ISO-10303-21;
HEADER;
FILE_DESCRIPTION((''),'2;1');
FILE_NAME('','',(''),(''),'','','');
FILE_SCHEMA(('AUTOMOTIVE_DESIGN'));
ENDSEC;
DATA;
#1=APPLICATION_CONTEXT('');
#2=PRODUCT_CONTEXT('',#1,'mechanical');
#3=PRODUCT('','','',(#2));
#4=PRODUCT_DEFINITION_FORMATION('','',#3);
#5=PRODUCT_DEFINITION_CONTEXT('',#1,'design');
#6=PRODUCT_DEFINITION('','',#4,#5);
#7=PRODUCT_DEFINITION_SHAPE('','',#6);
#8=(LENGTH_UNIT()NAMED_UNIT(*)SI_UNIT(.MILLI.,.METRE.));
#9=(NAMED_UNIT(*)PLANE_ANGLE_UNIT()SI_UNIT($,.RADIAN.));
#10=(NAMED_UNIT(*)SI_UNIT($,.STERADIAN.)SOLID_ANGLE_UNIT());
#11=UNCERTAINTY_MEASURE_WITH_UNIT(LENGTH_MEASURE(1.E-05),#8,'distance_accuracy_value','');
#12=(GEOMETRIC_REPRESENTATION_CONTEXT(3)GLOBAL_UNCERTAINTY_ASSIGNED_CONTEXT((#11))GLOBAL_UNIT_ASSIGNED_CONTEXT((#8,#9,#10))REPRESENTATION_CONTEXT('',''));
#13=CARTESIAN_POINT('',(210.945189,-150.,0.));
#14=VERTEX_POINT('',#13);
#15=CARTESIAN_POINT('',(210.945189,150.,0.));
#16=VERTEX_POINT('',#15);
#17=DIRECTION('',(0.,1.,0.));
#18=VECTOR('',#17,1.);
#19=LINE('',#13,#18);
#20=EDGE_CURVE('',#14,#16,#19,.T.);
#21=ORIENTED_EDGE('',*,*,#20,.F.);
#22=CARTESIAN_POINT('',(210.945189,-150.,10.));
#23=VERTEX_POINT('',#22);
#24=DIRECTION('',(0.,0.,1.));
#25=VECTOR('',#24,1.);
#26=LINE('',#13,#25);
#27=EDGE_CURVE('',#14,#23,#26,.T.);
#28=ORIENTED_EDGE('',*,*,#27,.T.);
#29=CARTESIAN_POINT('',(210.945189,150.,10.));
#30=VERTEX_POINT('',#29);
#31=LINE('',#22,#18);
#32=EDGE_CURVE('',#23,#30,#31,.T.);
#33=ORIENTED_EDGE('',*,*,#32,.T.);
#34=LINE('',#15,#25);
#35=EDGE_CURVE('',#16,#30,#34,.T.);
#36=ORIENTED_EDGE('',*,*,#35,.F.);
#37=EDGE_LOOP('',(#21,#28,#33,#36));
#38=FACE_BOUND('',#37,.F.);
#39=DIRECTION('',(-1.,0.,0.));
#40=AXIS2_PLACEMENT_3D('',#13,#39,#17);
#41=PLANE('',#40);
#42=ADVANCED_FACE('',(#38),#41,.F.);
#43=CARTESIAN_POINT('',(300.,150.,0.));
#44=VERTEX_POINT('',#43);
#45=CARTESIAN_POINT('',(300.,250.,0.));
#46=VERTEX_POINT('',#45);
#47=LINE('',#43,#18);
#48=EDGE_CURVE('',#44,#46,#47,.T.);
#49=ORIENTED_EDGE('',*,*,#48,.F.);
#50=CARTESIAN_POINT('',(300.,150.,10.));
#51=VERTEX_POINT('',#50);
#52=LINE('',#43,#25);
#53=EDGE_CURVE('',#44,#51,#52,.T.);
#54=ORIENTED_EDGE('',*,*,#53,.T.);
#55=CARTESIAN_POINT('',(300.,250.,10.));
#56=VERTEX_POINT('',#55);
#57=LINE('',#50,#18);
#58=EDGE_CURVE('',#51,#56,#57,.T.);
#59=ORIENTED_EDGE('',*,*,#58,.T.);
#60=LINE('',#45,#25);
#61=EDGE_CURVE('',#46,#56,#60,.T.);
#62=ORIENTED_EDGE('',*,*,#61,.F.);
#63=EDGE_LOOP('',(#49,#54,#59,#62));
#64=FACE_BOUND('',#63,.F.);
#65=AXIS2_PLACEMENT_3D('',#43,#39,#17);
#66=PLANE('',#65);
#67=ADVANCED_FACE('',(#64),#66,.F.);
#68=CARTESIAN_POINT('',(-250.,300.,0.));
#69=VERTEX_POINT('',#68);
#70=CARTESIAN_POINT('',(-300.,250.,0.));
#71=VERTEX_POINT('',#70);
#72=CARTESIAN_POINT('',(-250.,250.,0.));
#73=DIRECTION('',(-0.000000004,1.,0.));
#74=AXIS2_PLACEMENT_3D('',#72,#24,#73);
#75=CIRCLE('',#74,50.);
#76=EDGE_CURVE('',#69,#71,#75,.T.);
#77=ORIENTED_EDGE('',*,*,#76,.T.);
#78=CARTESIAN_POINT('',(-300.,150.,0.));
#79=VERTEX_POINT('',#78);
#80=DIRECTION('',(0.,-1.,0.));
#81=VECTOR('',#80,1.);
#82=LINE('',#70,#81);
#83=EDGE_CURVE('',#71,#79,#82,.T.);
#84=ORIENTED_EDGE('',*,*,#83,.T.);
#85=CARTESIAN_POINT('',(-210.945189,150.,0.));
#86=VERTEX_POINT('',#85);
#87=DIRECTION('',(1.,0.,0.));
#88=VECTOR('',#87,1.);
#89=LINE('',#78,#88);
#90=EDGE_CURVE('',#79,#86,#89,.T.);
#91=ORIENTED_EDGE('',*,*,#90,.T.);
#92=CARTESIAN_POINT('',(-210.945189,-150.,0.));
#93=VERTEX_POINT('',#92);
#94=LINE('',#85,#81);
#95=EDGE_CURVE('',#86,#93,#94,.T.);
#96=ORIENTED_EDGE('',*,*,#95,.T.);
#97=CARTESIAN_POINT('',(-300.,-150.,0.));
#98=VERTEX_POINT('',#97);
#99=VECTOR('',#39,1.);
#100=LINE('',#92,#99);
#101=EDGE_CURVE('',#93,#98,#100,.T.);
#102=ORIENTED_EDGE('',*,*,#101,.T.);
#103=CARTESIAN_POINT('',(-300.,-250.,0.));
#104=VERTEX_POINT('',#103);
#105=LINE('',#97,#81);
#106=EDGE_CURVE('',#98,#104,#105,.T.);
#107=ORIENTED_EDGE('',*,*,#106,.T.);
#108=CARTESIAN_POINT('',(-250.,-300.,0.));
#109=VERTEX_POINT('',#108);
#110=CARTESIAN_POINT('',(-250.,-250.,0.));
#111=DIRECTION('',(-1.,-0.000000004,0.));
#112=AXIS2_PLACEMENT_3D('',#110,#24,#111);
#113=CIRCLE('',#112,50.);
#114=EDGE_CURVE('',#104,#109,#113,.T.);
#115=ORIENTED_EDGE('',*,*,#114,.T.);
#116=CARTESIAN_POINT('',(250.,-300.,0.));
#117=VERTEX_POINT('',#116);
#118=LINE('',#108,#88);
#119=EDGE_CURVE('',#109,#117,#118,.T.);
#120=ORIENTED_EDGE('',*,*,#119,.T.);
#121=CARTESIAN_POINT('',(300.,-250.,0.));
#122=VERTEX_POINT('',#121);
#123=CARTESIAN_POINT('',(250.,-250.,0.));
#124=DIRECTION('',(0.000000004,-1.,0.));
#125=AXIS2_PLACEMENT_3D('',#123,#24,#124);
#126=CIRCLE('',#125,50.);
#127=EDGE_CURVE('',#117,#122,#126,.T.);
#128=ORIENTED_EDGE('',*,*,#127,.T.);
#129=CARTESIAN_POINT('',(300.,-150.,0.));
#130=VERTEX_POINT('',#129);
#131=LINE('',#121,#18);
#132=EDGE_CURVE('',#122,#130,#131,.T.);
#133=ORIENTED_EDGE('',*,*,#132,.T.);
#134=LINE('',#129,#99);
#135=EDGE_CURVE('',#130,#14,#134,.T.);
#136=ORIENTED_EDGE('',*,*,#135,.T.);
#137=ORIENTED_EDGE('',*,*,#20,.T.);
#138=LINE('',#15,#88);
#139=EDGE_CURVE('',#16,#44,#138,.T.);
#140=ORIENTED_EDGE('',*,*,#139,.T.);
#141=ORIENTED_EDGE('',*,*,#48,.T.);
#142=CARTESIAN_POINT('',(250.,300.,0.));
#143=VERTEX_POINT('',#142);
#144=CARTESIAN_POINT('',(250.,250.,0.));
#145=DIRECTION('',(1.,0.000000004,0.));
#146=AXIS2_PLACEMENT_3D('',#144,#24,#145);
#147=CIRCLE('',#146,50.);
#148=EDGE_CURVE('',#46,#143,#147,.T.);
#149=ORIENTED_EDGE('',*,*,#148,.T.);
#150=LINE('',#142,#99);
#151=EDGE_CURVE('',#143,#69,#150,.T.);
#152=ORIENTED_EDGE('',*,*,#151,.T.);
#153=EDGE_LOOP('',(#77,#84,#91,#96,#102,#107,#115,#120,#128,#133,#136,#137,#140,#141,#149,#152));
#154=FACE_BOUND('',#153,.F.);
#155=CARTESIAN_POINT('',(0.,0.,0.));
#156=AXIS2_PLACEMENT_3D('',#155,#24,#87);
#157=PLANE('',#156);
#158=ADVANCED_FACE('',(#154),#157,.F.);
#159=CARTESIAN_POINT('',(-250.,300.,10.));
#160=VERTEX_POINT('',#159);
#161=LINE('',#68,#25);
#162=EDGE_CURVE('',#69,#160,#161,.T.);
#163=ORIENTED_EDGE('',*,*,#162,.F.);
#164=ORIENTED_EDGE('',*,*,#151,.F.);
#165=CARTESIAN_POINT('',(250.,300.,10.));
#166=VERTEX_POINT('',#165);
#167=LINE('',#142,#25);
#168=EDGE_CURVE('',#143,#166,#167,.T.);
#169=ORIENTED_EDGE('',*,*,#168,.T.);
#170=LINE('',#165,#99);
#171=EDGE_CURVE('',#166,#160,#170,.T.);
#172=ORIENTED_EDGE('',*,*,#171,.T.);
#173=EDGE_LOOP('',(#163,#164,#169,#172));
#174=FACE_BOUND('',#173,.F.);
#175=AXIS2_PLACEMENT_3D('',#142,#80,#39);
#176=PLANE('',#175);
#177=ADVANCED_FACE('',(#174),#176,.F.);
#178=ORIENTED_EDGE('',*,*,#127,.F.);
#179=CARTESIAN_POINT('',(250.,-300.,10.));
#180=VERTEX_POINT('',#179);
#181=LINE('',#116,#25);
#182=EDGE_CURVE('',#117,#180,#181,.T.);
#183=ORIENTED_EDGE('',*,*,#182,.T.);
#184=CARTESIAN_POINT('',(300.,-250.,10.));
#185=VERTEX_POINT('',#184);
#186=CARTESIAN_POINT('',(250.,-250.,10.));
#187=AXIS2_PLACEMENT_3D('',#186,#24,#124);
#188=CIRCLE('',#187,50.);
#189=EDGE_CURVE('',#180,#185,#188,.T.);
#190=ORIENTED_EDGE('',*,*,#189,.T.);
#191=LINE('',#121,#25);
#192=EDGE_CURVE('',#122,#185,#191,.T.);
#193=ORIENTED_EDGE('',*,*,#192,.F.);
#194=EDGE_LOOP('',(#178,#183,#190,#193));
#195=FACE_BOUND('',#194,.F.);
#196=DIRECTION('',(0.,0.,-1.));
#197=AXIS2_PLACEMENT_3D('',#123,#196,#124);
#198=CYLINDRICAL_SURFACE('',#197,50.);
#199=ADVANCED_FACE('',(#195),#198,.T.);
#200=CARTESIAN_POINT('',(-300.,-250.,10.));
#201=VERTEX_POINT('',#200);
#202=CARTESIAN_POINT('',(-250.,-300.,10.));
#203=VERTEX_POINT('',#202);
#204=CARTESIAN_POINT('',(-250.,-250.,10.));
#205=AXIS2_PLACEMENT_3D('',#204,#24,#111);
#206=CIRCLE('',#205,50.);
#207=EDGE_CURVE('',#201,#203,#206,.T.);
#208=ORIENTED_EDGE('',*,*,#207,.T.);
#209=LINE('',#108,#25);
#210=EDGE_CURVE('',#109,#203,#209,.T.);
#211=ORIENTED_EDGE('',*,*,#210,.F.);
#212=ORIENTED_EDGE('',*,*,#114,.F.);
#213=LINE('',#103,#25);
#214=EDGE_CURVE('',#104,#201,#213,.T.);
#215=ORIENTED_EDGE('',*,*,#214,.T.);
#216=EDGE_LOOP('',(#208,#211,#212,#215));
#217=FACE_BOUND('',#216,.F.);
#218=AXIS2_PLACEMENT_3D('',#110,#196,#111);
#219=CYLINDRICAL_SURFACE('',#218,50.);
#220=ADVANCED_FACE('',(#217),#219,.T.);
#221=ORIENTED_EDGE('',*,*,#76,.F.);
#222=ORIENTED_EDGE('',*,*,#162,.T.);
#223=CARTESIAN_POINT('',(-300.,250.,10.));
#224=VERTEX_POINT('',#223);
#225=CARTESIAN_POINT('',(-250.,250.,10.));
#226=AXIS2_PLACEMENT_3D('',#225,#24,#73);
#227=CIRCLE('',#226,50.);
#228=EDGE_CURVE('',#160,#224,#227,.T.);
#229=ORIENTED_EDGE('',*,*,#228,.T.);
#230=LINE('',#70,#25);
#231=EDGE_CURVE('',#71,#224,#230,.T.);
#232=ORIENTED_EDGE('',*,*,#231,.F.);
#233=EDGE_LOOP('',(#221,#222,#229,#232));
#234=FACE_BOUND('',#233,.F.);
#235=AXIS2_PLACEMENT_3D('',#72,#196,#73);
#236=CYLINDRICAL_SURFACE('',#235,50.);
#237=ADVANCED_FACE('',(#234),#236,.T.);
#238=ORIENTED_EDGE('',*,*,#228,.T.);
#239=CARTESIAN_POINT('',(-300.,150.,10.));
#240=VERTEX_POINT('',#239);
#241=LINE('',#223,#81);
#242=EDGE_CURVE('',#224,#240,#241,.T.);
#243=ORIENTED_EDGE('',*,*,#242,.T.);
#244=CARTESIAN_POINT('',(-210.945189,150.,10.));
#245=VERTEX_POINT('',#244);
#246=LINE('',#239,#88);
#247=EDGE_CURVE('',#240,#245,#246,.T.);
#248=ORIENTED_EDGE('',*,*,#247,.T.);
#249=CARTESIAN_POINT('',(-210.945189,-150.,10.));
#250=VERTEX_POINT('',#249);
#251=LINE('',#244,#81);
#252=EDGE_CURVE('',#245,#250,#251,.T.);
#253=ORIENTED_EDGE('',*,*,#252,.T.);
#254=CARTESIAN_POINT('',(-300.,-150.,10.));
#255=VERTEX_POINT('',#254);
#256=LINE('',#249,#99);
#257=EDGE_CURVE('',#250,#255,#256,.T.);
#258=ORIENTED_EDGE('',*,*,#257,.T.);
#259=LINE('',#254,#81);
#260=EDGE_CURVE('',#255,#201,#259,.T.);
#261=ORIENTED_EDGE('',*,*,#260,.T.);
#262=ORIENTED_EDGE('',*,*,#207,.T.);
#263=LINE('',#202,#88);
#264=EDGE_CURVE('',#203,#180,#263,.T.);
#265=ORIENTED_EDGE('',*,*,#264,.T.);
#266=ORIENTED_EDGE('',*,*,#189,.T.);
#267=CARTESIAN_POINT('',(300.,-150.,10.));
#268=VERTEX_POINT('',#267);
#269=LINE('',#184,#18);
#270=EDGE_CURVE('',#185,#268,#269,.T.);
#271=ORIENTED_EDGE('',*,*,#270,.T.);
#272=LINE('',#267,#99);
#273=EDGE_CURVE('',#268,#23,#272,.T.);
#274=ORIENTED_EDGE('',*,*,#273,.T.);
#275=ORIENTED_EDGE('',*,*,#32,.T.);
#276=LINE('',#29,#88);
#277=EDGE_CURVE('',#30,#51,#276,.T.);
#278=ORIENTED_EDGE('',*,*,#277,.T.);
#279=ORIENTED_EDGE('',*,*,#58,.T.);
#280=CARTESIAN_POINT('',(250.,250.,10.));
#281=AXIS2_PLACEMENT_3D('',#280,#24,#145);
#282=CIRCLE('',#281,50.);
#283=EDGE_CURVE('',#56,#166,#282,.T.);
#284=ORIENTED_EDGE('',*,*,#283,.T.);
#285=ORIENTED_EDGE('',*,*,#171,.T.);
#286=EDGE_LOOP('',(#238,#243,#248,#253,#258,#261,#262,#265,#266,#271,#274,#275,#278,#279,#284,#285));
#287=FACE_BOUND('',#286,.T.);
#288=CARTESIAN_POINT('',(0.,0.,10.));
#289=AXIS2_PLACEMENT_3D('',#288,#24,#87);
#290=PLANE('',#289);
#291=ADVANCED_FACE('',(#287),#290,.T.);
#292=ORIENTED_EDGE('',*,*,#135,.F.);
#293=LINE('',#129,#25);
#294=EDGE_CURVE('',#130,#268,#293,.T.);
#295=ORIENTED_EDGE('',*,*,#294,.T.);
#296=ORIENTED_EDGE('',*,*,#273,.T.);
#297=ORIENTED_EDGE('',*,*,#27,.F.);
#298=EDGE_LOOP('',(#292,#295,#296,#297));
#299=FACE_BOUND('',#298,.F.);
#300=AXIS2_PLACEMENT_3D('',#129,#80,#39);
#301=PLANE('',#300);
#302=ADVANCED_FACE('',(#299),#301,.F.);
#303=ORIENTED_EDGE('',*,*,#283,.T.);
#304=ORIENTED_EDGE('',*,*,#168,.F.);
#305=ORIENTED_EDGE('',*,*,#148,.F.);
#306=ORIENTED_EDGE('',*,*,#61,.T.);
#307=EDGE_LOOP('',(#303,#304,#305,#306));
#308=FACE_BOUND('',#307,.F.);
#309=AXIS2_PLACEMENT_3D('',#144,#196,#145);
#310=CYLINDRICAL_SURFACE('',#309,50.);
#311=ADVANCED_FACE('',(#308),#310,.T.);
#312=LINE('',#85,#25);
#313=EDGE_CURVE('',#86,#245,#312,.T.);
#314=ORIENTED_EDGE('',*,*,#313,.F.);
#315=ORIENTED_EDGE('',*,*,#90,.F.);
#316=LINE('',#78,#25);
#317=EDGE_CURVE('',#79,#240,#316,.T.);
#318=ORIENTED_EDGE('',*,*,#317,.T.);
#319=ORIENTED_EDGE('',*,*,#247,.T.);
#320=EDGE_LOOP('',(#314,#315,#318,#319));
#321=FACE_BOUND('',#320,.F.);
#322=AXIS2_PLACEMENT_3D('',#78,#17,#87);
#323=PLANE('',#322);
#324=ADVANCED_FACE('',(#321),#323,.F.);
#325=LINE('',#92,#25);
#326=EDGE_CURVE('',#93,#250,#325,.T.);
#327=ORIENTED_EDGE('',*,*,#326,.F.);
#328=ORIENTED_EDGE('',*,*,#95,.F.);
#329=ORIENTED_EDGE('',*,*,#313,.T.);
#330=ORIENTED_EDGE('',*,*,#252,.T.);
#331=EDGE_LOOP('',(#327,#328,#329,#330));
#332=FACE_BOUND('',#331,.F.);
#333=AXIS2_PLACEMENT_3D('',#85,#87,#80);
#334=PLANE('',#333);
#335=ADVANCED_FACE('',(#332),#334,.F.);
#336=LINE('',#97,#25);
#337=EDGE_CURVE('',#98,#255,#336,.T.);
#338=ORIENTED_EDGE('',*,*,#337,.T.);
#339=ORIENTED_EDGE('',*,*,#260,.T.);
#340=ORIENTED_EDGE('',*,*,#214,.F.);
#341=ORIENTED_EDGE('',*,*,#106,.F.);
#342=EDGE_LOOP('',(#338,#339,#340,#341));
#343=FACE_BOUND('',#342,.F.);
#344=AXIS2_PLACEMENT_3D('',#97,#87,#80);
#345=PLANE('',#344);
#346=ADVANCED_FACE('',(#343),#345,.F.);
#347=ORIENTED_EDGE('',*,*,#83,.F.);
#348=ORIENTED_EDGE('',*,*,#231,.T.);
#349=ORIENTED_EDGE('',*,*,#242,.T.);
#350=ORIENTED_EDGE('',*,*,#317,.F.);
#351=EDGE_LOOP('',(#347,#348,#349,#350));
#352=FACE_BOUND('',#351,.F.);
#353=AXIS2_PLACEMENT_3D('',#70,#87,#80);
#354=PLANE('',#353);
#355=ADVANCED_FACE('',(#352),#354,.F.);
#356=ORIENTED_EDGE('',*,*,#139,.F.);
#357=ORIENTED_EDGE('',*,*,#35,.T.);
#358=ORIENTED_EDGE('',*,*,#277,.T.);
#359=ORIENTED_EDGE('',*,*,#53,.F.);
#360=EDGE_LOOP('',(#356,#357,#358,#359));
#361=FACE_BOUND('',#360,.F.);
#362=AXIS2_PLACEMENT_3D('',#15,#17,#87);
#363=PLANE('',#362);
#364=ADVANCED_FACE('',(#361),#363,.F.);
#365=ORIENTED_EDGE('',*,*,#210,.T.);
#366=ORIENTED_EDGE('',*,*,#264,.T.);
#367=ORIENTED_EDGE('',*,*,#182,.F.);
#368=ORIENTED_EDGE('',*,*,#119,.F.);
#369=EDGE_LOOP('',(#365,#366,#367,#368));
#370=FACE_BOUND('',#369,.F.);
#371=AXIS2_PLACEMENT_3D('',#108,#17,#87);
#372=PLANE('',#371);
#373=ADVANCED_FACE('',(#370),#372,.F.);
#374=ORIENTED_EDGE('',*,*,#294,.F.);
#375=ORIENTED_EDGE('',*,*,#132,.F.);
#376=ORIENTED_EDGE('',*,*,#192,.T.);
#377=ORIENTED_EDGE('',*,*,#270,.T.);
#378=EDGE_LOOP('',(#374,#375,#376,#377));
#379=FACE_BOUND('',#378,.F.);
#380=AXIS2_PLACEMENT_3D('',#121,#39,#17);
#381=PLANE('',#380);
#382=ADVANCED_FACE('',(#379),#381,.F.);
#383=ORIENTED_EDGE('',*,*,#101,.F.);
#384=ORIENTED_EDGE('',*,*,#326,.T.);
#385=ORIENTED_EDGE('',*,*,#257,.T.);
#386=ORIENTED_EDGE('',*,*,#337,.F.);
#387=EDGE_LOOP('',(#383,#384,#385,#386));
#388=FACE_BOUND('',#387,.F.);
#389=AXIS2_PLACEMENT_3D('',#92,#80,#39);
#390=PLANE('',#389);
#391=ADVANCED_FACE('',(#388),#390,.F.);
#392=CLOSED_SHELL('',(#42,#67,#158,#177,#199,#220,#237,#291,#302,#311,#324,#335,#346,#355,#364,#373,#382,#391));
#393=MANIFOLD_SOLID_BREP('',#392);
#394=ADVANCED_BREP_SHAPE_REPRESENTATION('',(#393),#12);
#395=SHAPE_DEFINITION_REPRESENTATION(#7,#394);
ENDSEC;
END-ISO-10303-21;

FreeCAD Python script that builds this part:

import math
import FreeCAD as App
import Part
import Sketcher
Q = App.Units.Quantity

doc = App.newDocument("Part")
body = doc.addObject("PartDesign::Body", "Body")

sketch1 = body.newObject("Sketcher::SketchObject", "Sketch")
sketch1.AttachmentSupport = (doc.getObject("XY_Plane"), [""])
sketch1.MapMode = "FlatFace"
sketch1.addGeometry([
    Part.ArcOfCircle(Part.Circle(App.Vector(250, 250, 0), App.Vector(0, 0, 1), 50), math.radians(0), math.radians(90)),
    Part.LineSegment(App.Vector(250, 300, 0), App.Vector(-250, 300, 0)),
    Part.ArcOfCircle(Part.Circle(App.Vector(-250, 250, 0), App.Vector(0, 0, 1), 50), math.radians(90), math.radians(180)),
    Part.LineSegment(App.Vector(-300, 250, 0), App.Vector(-300, 150, 0)),
    Part.LineSegment(App.Vector(-300, 150, 0), App.Vector(-211, 150, 0)),
    Part.LineSegment(App.Vector(-211, 150, 0), App.Vector(-211, -150, 0)),
    Part.LineSegment(App.Vector(-211, -150, 0), App.Vector(-300, -150, 0)),
    Part.LineSegment(App.Vector(-300, -150, 0), App.Vector(-300, -250, 0)),
    Part.ArcOfCircle(Part.Circle(App.Vector(-250, -250, 0), App.Vector(0, 0, 1), 50), math.radians(-180), math.radians(-90)),
    Part.LineSegment(App.Vector(-250, -300, 0), App.Vector(250, -300, 0)),
    Part.ArcOfCircle(Part.Circle(App.Vector(250, -250, 0), App.Vector(0, 0, 1), 50), math.radians(-90), math.radians(0)),
    Part.LineSegment(App.Vector(300, -250, 0), App.Vector(300, -150, 0)),
    Part.LineSegment(App.Vector(300, -150, 0), App.Vector(211, -150, 0)),
    Part.LineSegment(App.Vector(211, -150, 0), App.Vector(211, 150, 0)),
    Part.LineSegment(App.Vector(211, 150, 0), App.Vector(300, 150, 0)),
    Part.LineSegment(App.Vector(300, 150, 0), App.Vector(300, 250, 0)),
], False)
sketch1.addConstraint([
    Sketcher.Constraint("Tangent", 0, 2, 1, 1),
    Sketcher.Constraint("Tangent", 1, 2, 2, 1),
    Sketcher.Constraint("Tangent", 2, 2, 3, 1),
    Sketcher.Constraint("Coincident", 3, 2, 4, 1),
    Sketcher.Constraint("Coincident", 4, 2, 5, 1),
    Sketcher.Constraint("Coincident", 5, 2, 6, 1),
    Sketcher.Constraint("Coincident", 6, 2, 7, 1),
    Sketcher.Constraint("Tangent", 7, 2, 8, 1),
    Sketcher.Constraint("Tangent", 8, 2, 9, 1),
    Sketcher.Constraint("Tangent", 9, 2, 10, 1),
    Sketcher.Constraint("Tangent", 10, 2, 11, 1),
    Sketcher.Constraint("Coincident", 11, 2, 12, 1),
    Sketcher.Constraint("Coincident", 12, 2, 13, 1),
    Sketcher.Constraint("Coincident", 13, 2, 14, 1),
    Sketcher.Constraint("Coincident", 14, 2, 15, 1),
    Sketcher.Constraint("Tangent", 15, 2, 0, 1),
    Sketcher.Constraint("Horizontal", 1),
    Sketcher.Constraint("Vertical", 3),
    Sketcher.Constraint("Horizontal", 4),
    Sketcher.Constraint("Vertical", 5),
    Sketcher.Constraint("Horizontal", 6),
    Sketcher.Constraint("Vertical", 7),
    Sketcher.Constraint("Horizontal", 9),
    Sketcher.Constraint("Vertical", 11),
    Sketcher.Constraint("Horizontal", 12),
    Sketcher.Constraint("Vertical", 13),
    Sketcher.Constraint("Horizontal", 14),
    Sketcher.Constraint("Vertical", 15),
    Sketcher.Constraint("Equal", 0, 2),
    Sketcher.Constraint("Equal", 2, 8),
    Sketcher.Constraint("Equal", 8, 10),
    Sketcher.Constraint("Symmetric", 0, 3, 8, 3, -1, 1),
    Sketcher.Constraint("Symmetric", 3, 2, 11, 2, -1, 1),
    Sketcher.Constraint("Symmetric", 5, 2, 13, 2, -1, 1),
    Sketcher.Constraint("Symmetric", 6, 2, 11, 2, -2),
    Sketcher.Constraint("Radius", 0, Q("50 mm")),
    Sketcher.Constraint("DistanceX", 1, 2, 1, 1, Q("500 mm")),
    Sketcher.Constraint("DistanceY", 3, 2, 3, 1, Q("100 mm")),
    Sketcher.Constraint("DistanceY", 5, 2, 5, 1, Q("300 mm")),
    Sketcher.Constraint("DistanceX", 4, 1, 4, 2, Q("89.054811 mm")),
])
pad1 = body.newObject("PartDesign::Pad", "Pad")
pad1.Profile = sketch1
pad1.Length = 10

doc.recompute()
